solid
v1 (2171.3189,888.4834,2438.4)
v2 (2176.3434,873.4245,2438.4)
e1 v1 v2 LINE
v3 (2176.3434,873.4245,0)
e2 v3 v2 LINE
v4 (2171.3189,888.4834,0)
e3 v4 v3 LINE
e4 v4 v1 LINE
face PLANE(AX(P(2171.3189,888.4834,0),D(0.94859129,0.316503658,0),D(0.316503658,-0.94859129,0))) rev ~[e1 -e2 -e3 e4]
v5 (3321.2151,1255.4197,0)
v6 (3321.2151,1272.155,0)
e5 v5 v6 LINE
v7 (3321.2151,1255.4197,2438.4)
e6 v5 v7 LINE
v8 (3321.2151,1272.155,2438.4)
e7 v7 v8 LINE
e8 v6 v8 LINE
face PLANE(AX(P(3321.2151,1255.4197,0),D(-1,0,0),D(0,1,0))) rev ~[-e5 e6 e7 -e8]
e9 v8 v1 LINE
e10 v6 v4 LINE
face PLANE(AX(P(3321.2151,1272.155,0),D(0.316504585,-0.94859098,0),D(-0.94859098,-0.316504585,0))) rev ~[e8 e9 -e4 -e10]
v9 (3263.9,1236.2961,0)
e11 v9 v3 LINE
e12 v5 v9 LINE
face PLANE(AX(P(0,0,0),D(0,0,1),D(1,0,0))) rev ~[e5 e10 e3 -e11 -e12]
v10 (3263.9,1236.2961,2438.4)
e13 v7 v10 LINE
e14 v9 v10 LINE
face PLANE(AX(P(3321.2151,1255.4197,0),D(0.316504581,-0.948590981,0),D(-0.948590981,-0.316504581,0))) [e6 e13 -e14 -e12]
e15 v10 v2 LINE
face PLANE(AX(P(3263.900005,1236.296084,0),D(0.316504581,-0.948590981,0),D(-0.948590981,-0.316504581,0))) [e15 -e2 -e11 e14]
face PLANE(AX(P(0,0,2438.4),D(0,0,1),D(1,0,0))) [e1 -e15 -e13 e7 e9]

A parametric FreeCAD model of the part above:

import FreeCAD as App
import Part
import Sketcher
Q = App.Units.Quantity


def add_polygon(sketch, points):
    """Adds a closed chain of lines whose ends are joined by coincident constraints."""
    first, n = sketch.GeometryCount, len(points)
    for a, b in zip(points, points[1:] + points[:1]):
        sketch.addGeometry(Part.LineSegment(App.Vector(*a, 0), App.Vector(*b, 0)), False)
    for i in range(n):
        sketch.addConstraint(Sketcher.Constraint("Coincident", first + i, 2, first + (i + 1) % n, 1))

doc = App.newDocument("Part")
body = doc.addObject("PartDesign::Body", "Body")

# Sketch on XY plane
sketch1 = doc.addObject("Sketcher::SketchObject", "Sketch")
body.addObject(sketch1)
sketch1.AttachmentSupport = (doc.XY_Plane, [""])
sketch1.MapMode = "FlatFace"
add_polygon(sketch1, [(2176.3434, 873.4245), (3321.2151, 1255.4197), (3321.2151, 1272.155), (2171.3189, 888.4834)])  # lines 0-3
sketch1.addConstraint(Sketcher.Constraint("Vertical", 1))
sketch1.addConstraint(Sketcher.Constraint("Distance", 2, Q("47.725 in")))
sketch1.addConstraint(Sketcher.Constraint("Distance", 3, Q("0.625 in")))
sketch1.addConstraint(Sketcher.Constraint("DistanceX", -1, 1, 2, 2, Q("85.485 in")))
sketch1.addConstraint(Sketcher.Constraint("DistanceY", 1, 1, 1, 2, 16.7353))
sketch1.addConstraint(Sketcher.Constraint("DistanceX", -1, 1, 0, 2, Q("130.7565 in")))
sketch1.addConstraint(Sketcher.Constraint("DistanceX", -1, 1, 3, 2, Q("85.6828 in")))
sketch1.addConstraint(Sketcher.Constraint("DistanceY", -1, 1, 3, 2, Q("34.3868 in")))
pad1 = doc.addObject("PartDesign::Pad", "Pad")
body.addObject(pad1)
pad1.Profile = sketch1
pad1.Length = Q("96 in")

doc.recompute()
